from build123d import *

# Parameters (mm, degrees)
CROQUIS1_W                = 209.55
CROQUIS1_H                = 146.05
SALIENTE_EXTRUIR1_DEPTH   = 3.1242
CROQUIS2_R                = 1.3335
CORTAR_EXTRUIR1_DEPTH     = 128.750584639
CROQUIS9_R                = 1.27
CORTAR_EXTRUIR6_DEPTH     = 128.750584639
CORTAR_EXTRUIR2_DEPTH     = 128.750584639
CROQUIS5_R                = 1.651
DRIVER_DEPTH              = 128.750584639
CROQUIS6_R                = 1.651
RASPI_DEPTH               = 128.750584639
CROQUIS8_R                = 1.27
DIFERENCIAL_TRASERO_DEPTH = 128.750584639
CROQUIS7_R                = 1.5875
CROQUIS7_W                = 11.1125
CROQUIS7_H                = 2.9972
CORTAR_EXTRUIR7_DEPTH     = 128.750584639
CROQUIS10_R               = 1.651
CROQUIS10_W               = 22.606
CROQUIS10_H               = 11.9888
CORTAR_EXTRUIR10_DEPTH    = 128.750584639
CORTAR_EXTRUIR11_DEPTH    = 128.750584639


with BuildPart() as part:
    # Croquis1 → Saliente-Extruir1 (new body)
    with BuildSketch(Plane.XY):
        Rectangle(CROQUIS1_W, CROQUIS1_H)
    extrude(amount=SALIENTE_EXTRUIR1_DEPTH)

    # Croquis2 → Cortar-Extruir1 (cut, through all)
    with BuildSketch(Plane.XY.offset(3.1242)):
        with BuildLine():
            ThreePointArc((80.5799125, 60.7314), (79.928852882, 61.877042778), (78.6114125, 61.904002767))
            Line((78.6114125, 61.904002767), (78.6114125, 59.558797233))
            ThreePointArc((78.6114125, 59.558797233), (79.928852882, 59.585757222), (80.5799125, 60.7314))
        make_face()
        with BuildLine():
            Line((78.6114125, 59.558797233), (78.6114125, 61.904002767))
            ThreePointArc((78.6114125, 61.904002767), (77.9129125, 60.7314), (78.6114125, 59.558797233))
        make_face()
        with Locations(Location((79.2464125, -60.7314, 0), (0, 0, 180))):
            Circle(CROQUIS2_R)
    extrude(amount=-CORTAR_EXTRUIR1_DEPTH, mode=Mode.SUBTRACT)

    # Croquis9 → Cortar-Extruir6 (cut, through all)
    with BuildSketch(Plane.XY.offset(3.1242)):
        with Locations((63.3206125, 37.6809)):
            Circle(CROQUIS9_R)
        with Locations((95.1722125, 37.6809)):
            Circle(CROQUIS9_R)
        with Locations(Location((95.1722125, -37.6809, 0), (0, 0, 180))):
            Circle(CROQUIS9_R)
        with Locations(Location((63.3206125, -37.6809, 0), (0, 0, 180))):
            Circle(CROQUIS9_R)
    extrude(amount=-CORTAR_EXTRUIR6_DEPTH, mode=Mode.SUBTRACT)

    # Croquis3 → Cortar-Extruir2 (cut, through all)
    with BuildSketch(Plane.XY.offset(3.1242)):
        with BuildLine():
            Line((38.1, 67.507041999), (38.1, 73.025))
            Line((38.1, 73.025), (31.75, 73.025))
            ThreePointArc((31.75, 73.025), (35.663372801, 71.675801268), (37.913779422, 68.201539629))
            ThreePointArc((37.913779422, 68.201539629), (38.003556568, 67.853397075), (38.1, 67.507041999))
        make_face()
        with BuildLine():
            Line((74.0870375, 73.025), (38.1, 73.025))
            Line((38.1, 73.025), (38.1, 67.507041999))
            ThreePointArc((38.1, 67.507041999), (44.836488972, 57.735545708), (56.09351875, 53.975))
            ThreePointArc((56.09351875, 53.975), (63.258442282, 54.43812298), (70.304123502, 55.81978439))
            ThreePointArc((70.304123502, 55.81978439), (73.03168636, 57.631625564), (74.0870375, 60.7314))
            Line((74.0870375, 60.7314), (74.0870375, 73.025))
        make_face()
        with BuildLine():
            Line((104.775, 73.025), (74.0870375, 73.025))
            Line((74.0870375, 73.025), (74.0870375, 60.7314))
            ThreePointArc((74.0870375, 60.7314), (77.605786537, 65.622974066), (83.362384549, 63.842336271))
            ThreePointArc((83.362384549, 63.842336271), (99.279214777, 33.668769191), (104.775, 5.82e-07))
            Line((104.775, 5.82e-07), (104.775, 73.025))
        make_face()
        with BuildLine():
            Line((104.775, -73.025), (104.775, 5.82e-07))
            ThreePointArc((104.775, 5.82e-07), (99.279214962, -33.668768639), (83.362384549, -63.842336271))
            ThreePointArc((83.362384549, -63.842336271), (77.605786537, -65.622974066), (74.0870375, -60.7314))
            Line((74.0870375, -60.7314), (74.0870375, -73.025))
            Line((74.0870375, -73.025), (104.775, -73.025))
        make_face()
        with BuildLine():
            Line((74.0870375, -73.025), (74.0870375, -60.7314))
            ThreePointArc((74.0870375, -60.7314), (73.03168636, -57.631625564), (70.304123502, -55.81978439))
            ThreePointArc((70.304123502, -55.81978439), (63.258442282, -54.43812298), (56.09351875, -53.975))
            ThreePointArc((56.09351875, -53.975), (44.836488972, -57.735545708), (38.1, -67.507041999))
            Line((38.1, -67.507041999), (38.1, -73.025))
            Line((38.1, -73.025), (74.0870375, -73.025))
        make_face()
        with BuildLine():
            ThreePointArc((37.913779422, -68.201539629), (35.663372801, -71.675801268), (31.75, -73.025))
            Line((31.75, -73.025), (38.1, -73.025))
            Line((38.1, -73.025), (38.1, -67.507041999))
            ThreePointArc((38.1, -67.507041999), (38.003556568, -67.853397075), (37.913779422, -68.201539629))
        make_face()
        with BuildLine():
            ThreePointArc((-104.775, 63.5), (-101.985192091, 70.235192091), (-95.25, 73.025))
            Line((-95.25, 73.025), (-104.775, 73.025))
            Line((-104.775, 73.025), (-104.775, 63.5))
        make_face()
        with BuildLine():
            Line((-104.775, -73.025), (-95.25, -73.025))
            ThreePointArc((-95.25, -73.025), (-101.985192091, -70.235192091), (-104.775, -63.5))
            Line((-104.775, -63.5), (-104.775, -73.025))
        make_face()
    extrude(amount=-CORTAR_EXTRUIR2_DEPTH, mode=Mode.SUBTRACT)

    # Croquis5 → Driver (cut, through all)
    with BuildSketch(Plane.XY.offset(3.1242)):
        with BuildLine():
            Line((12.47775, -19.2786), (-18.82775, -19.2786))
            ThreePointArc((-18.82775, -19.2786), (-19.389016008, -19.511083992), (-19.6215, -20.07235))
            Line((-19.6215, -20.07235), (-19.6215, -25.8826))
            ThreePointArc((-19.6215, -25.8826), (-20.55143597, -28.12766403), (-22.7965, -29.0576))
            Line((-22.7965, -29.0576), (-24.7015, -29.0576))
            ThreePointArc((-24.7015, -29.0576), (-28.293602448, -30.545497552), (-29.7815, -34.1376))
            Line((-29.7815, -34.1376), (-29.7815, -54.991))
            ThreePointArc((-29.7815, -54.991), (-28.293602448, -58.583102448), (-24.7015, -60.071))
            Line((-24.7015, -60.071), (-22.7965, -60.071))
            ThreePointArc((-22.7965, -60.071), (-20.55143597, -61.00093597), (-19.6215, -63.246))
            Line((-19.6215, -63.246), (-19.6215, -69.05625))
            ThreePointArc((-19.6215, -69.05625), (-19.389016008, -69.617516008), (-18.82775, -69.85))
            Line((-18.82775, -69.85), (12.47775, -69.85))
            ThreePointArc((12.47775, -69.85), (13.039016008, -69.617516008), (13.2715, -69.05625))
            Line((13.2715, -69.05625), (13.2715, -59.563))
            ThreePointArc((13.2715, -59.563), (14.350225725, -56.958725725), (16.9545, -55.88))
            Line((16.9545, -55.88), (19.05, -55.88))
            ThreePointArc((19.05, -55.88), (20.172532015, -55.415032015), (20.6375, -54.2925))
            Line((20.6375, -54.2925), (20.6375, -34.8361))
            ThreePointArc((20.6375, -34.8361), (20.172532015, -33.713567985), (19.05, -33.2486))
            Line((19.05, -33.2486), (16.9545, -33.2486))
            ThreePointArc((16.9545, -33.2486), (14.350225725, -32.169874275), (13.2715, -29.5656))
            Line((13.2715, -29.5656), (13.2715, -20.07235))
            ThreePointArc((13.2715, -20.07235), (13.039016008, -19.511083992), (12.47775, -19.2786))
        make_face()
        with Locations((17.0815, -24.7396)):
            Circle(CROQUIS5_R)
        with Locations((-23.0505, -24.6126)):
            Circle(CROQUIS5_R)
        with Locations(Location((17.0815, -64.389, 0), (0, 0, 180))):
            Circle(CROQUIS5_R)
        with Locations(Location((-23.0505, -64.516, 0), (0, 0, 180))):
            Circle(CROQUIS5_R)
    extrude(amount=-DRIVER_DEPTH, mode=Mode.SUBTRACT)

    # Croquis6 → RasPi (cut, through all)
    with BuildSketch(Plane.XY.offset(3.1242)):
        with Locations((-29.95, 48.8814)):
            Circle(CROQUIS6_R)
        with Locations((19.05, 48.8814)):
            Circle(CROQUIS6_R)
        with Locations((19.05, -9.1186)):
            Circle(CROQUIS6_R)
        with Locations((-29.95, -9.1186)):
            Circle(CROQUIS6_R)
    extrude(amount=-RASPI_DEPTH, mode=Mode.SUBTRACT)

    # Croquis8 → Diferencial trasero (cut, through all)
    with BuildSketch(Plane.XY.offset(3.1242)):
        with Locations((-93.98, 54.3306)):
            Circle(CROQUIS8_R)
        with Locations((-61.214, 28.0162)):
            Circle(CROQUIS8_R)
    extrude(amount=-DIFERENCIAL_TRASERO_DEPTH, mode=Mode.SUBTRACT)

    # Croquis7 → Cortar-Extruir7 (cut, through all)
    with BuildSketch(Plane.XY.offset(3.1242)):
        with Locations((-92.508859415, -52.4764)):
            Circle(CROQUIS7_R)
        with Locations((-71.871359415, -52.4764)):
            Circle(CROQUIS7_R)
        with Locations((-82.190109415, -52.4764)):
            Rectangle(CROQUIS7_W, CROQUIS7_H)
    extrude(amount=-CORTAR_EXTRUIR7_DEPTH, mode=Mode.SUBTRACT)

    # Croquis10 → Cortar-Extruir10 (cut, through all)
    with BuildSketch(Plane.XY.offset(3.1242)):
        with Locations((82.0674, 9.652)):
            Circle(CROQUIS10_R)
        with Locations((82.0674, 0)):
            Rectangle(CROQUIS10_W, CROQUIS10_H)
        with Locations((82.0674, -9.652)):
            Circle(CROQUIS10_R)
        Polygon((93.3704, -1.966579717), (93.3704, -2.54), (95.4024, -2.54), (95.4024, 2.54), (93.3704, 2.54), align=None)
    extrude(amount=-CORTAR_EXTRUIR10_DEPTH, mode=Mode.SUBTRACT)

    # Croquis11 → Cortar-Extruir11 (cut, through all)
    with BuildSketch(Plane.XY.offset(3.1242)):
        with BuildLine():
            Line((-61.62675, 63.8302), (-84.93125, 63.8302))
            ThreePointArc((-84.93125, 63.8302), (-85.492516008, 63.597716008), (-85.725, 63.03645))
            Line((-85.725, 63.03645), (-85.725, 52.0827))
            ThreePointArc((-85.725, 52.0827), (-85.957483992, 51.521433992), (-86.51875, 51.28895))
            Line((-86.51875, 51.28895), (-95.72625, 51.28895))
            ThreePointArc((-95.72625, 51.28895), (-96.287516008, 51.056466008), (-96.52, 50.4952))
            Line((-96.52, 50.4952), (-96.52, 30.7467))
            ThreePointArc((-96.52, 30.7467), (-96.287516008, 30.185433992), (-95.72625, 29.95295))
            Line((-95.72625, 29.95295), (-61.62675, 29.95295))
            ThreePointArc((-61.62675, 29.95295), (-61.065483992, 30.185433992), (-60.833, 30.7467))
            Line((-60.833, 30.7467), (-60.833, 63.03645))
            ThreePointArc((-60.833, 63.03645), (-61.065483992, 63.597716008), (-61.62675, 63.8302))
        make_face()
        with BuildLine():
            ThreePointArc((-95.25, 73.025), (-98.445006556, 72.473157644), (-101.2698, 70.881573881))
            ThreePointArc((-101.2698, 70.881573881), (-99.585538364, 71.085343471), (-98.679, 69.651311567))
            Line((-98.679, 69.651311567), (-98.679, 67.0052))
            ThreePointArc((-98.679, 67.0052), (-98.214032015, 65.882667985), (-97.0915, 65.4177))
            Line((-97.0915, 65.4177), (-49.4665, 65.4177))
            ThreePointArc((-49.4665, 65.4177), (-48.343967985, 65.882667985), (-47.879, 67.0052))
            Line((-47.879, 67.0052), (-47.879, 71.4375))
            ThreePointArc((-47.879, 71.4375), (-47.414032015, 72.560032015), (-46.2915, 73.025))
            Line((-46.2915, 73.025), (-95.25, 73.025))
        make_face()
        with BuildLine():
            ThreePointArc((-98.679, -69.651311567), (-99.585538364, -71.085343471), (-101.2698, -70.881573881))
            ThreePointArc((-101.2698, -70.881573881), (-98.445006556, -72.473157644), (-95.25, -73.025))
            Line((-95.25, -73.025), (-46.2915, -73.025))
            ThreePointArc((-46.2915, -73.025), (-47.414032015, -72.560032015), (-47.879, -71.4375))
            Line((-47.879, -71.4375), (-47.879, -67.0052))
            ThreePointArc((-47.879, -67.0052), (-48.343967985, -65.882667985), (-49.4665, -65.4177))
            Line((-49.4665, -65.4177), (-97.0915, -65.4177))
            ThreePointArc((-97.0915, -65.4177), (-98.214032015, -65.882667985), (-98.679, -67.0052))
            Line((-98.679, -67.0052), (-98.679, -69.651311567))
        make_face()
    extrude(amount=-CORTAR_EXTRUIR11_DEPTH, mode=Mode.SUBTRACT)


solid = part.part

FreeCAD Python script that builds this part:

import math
import FreeCAD as App
import Part
import Sketcher

V = App.Vector
Q = App.Units.Quantity


def add_polygon(sketch, points):
    """Adds a closed chain of lines whose ends are joined by coincident constraints."""
    first, n = sketch.GeometryCount, len(points)
    for a, b in zip(points, points[1:] + points[:1]):
        sketch.addGeometry(Part.LineSegment(App.Vector(*a, 0), App.Vector(*b, 0)), False)
    for i in range(n):
        sketch.addConstraint(Sketcher.Constraint("Coincident", first + i, 2, first + (i + 1) % n, 1))

doc = App.newDocument("Part")
params = doc.addObject("Spreadsheet::Sheet", "Params")
for row, (alias, value) in enumerate([
    ("sketch1_width", "8.25 in"),
    ("sketch1_height", "5.75 in"),
    ("pad1_length", "0.123 in"),
    ("sketch2_diameter", "0.105 in"),
    ("sketch3_diameter", "0.1 in"),
    ("sketch4_radius", "0.2 in"),
    ("sketch4_radius2", "0.25 in"),
    ("sketch4_radius3", "0.203125 in"),
    ("sketch4_radius4", "0.375 in"),
    ("sketch5_radius", "0.2 in"),
    ("sketch5_diameter", "0.13 in"),
    ("sketch5_radius2", "0.03125 in"),
    ("sketch5_radius3", "0.125 in"),
    ("sketch5_radius4", "0.145 in"),
    ("sketch6_diameter", "0.13 in"),
    ("sketch7_diameter", "0.1 in"),
    ("sketch8_diameter", "0.125 in"),
    ("sketch8_width", "0.4375 in"),
    ("sketch8_height", "0.118 in"),
    ("sketch9_diameter", "0.13 in"),
    ("sketch9_height", "0.2 in"),
    ("sketch9_width", "0.89 in"),
    ("sketch9_width2", "0.08 in"),
    ("sketch9_height2", "0.472 in"),
    ("sketch10_radius", "0.03125 in"),
    ("sketch10_radius2", "0.375 in"),
    ("sketch10_radius3", "0.0625 in"),
], start=1):
    params.set(f"A{row}", alias)
    params.set(f"B{row}", "=" + value)
    params.setAlias(f"B{row}", alias)

body = doc.addObject("PartDesign::Body", "Body")

sketch1 = body.newObject("Sketcher::SketchObject", "Sketch")
sketch1.AttachmentSupport = (doc.getObject("XY_Plane"), [""])
sketch1.MapMode = "FlatFace"
add_polygon(sketch1, [(-105, 73), (-105, -73), (105, -73), (105, 73)])
sketch1.addConstraint([
    Sketcher.Constraint("Vertical", 0),
    Sketcher.Constraint("Horizontal", 1),
    Sketcher.Constraint("Vertical", 2),
    Sketcher.Constraint("Horizontal", 3),
    Sketcher.Constraint("Symmetric", 0, 2, 2, 2, -1, 1),
    Sketcher.Constraint("DistanceX", 1, 1, 1, 2, Q("8.25 in")),
    Sketcher.Constraint("DistanceY", 0, 2, 0, 1, Q("5.75 in")),
])
sketch1.setExpression("Constraints[9]", "Params.sketch1_width")
sketch1.setExpression("Constraints[10]", "Params.sketch1_height")
pad1 = body.newObject("PartDesign::Pad", "Pad")
pad1.Profile = sketch1
pad1.setExpression("Length", "Params.pad1_length")

sketch2 = body.newObject("Sketcher::SketchObject", "Sketch001")
sketch2.AttachmentSupport = (doc.getObject("XY_Plane"), [""])
sketch2.MapMode = "FlatFace"
sketch2.AttachmentOffset = App.Placement(V(0, 0, 0.123 * 25.4), App.Rotation())
sketch2.addGeometry([
    Part.ArcOfCircle(Part.Circle(V(79.2, 60.7, 0), V(0, 0, 1), 1.3), math.radians(0), math.radians(118)),
    Part.ArcOfCircle(Part.Circle(V(79.2, 60.7, 0), V(0, 0, 1), 1.3), math.radians(118), math.radians(242)),
    Part.ArcOfCircle(Part.Circle(V(79.2, 60.7, 0), V(0, 0, 1), 1.3), math.radians(-118), math.radians(0)),
    Part.Circle(V(79.2, -60.7, 0), V(0, 0, 1), 1.3),
], False)
sketch2.addConstraint([
    Sketcher.Constraint("Tangent", 0, 2, 1, 1),
    Sketcher.Constraint("Tangent", 1, 2, 2, 1),
    Sketcher.Constraint("Tangent", 2, 2, 0, 1),
    Sketcher.Constraint("Equal", 2, 3),
    Sketcher.Constraint("Symmetric", 0, 3, 3, 3, -1),
    Sketcher.Constraint("Horizontal", 1, 3, 2, 2),
    Sketcher.Constraint("Vertical", 0, 2, 1, 2),
    Sketcher.Constraint("Diameter", 3, Q("0.105 in")),
    Sketcher.Constraint("DistanceY", -1, 1, 0, 3, Q("2.391 in")),
    Sketcher.Constraint("DistanceX", 0, 2, 1, 3, Q("0.025 in")),
    Sketcher.Constraint("DistanceX", -1, 1, 0, 3, 79.246413),
])
sketch2.setExpression("Constraints[7]", "Params.sketch2_diameter")
pocket1 = body.newObject("PartDesign::Pocket", "Pocket")
pocket1.Profile = sketch2
pocket1.Type = "ThroughAll"

sketch3 = body.newObject("Sketcher::SketchObject", "Sketch002")
sketch3.AttachmentSupport = (doc.getObject("XY_Plane"), [""])
sketch3.MapMode = "FlatFace"
sketch3.AttachmentOffset = App.Placement(V(0, 0, 0.123 * 25.4), App.Rotation())
sketch3.addGeometry([
    Part.Circle(V(63.3, 37.7, 0), V(0, 0, 1), 1.3),
    Part.Circle(V(95.2, 37.7, 0), V(0, 0, 1), 1.3),
    Part.Circle(V(95.2, -37.7, 0), V(0, 0, 1), 1.3),
    Part.Circle(V(63.3, -37.7, 0), V(0, 0, 1), 1.3),
], False)
sketch3.addConstraint([
    Sketcher.Constraint("Equal", 0, 1),
    Sketcher.Constraint("Equal", 1, 2),
    Sketcher.Constraint("Equal", 2, 3),
    Sketcher.Constraint("Symmetric", 1, 3, 2, 3, -1),
    Sketcher.Constraint("Symmetric", 0, 3, 3, 3, -1),
    Sketcher.Constraint("Horizontal", 0, 3, 1, 3),
    Sketcher.Constraint("Diameter", 0, Q("0.1 in")),
    Sketcher.Constraint("DistanceX", 0, 3, 1, 3, Q("1.254 in")),
    Sketcher.Constraint("DistanceY", 2, 3, 1, 3, Q("2.967 in")),
    Sketcher.Constraint("DistanceX", -1, 1, 0, 3, 63.320613),
])
sketch3.setExpression("Constraints[6]", "Params.sketch3_diameter")
pocket2 = body.newObject("PartDesign::Pocket", "Pocket001")
pocket2.Profile = sketch3
pocket2.Type = "ThroughAll"

sketch4 = body.newObject("Sketcher::SketchObject", "Sketch003")
sketch4.AttachmentSupport = (doc.getObject("XY_Plane"), [""])
sketch4.MapMode = "FlatFace"
sketch4.AttachmentOffset = App.Placement(V(0, 0, 0.123 * 25.4), App.Rotation())
sketch4.addGeometry([
    Part.ArcOfCircle(Part.Circle(V(31.8, 66.7, 0), V(0, 0, 1), 6.3), math.radians(14), math.radians(90)),
    Part.ArcOfCircle(Part.Circle(V(56.1, 72.7, 0), V(0, 0, 1), 18.7), math.radians(-166.09), math.radians(-163.89)),
    Part.ArcOfCircle(Part.Circle(V(56.1, 72.7, 0), V(0, 0, 1), 18.7), math.radians(-164), math.radians(-90)),
    Part.ArcOfCircle(Part.Circle(V(56.1, 109.6, 0), V(0, 0, 1), 55.7), math.radians(-90), math.radians(-75.21)),
    Part.ArcOfCircle(Part.Circle(V(69, 60.7, 0), V(0, 0, 1), 5.1), math.radians(-75), math.radians(0)),
    Part.ArcOfCircle(Part.Circle(V(79.2, 60.7, 0), V(0, 0, 1), 5.2), math.radians(37), math.radians(180)),
    Part.ArcOfCircle(Part.Circle(V(-1.1, 0, 0), V(0, 0, 1), 105.9), math.radians(0), math.radians(37)),
    Part.LineSegment(V(104.8, 0, 0), V(104.8, 73, 0)),
    Part.LineSegment(V(104.8, 73, 0), V(31.8, 73, 0)),
    Part.LineSegment(V(104.8, -73, 0), V(104.8, 0, 0)),
    Part.ArcOfCircle(Part.Circle(V(-1.1, 0, 0), V(0, 0, 1), 105.9), math.radians(-37), math.radians(0)),
    Part.ArcOfCircle(Part.Circle(V(79.2, -60.7, 0), V(0, 0, 1), 5.2), math.radians(180), math.radians(323)),
    Part.ArcOfCircle(Part.Circle(V(69, -60.7, 0), V(0, 0, 1), 5.1), math.radians(0), math.radians(75)),
    Part.ArcOfCircle(Part.Circle(V(56.1, -109.6, 0), V(0, 0, 1), 55.7), math.radians(75.21), math.radians(90)),
    Part.ArcOfCircle(Part.Circle(V(56.1, -72.7, 0), V(0, 0, 1), 18.7), math.radians(90), math.radians(164)),
    Part.ArcOfCircle(Part.Circle(V(56.1, -72.7, 0), V(0, 0, 1), 18.7), math.radians(163.89), math.radians(166.09)),
    Part.ArcOfCircle(Part.Circle(V(31.8, -66.7, 0), V(0, 0, 1), 6.3), math.radians(-90), math.radians(-14)),
    Part.LineSegment(V(31.8, -73, 0), V(104.8, -73, 0)),
    Part.ArcOfCircle(Part.Circle(V(-95.3, 63.5, 0), V(0, 0, 1), 9.5), math.radians(90), math.radians(180)),
    Part.LineSegment(V(-95.2, 73, 0), V(-104.8, 73, 0)),
    Part.LineSegment(V(-104.8, 73, 0), V(-104.8, 63.5, 0)),
    Part.LineSegment(V(-104.8, -73, 0), V(-95.2, -73, 0)),
    Part.ArcOfCircle(Part.Circle(V(-95.3, -63.5, 0), V(0, 0, 1), 9.5), math.radians(180), math.radians(270)),
    Part.LineSegment(V(-104.8, -63.5, 0), V(-104.8, -73, 0)),
], False)
sketch4.addConstraint([
    Sketcher.Constraint("Tangent", 0, 1, 1, 1),
    Sketcher.Constraint("Tangent", 1, 2, 2, 1),
    Sketcher.Constraint("Tangent", 2, 2, 3, 1),
    Sketcher.Constraint("Tangent", 3, 2, 4, 1),
    Sketcher.Constraint("Tangent", 4, 2, 5, 2),
    Sketcher.Constraint("Tangent", 5, 1, 6, 2),
    Sketcher.Constraint("Tangent", 6, 1, 7, 1),
    Sketcher.Constraint("Coincident", 7, 2, 8, 1),
    Sketcher.Constraint("Tangent", 8, 2, 0, 2),
    Sketcher.Constraint("Tangent", 9, 2, 10, 2),
    Sketcher.Constraint("Tangent", 10, 1, 11, 2),
    Sketcher.Constraint("Tangent", 11, 1, 12, 1),
    Sketcher.Constraint("Tangent", 12, 2, 13, 1),
    Sketcher.Constraint("Tangent", 13, 2, 14, 1),
    Sketcher.Constraint("Tangent", 14, 2, 15, 1),
    Sketcher.Constraint("Tangent", 15, 2, 16, 2),
    Sketcher.Constraint("Tangent", 16, 1, 17, 1),
    Sketcher.Constraint("Coincident", 17, 2, 9, 1),
    Sketcher.Constraint("Tangent", 18, 1, 19, 1),
    Sketcher.Constraint("Coincident", 19, 2, 20, 1),
    Sketcher.Constraint("Tangent", 20, 2, 18, 2),
    Sketcher.Constraint("Tangent", 21, 2, 22, 2),
    Sketcher.Constraint("Tangent", 22, 1, 23, 1),
    Sketcher.Constraint("Coincident", 23, 2, 21, 1),
    Sketcher.Constraint("Vertical", 7),
    Sketcher.Constraint("Horizontal", 8),
    Sketcher.Constraint("Vertical", 9),
    Sketcher.Constraint("Horizontal", 17),
    Sketcher.Constraint("Horizontal", 19),
    Sketcher.Constraint("Vertical", 20),
    Sketcher.Constraint("Horizontal", 21),
    Sketcher.Constraint("Vertical", 23),
    Sketcher.Constraint("Coincident", 10, 3, 6, 3),
    Sketcher.Constraint("Equal", 1, 2),
    Sketcher.Constraint("Equal", 6, 10),
    Sketcher.Constraint("Equal", 5, 11),
    Sketcher.Constraint("Equal", 4, 12),
    Sketcher.Constraint("Equal", 3, 13),
    Sketcher.Constraint("Equal", 2, 14),
    Sketcher.Constraint("Equal", 14, 15),
    Sketcher.Constraint("Equal", 0, 16),
    Sketcher.Constraint("Equal", 18, 22),
    Sketcher.Constraint("Symmetric", 17, 2, 19, 2, -1, 1),
    Sketcher.Constraint("Symmetric", 7, 2, 23, 2, -1, 1),
    Sketcher.Constraint("Symmetric", 5, 3, 11, 3, -1),
    Sketcher.Constraint("Symmetric", 3, 3, 13, 3, -1),
    Sketcher.Constraint("Symmetric", 0, 3, 16, 3, -1),
    Sketcher.Constraint("Horizontal", 4, 3, 5, 3),
    Sketcher.Constraint("Vertical", 2, 3, 3, 3),
    Sketcher.Constraint("Vertical", 1, 2, 14, 2),
    Sketcher.Constraint("Equal", 17, 7),
    Sketcher.Constraint("Radius", 4, Q("0.2 in")),
    Sketcher.Constraint("Radius", 0, Q("0.25 in")),
    Sketcher.Constraint("Radius", 5, Q("0.203125 in")),
    Sketcher.Constraint("Radius", 18, Q("0.375 in")),
    Sketcher.Constraint("DistanceX", 18, 3, 0, 3, Q("5 in")),
    Sketcher.Constraint("DistanceY", 22, 3, 18, 3, Q("5 in")),
    Sketcher.Constraint("DistanceX", -1, 1, 1, 2, Q("1.5 in")),
    Sketcher.Constraint("Radius", 6, 105.8802),
    Sketcher.Constraint("DistanceY", -1, 1, 4, 3, Q("2.391 in")),
    Sketcher.Constraint("DistanceY", -1, 1, 2, 2, Q("2.125 in")),
    Sketcher.Constraint("DistanceY", -1, 1, 0, 1, Q("2.6851 in")),
])
sketch4.setExpression("Constraints[51]", "Params.sketch4_radius")
sketch4.setExpression("Constraints[52]", "Params.sketch4_radius2")
sketch4.setExpression("Constraints[53]", "Params.sketch4_radius3")
sketch4.setExpression("Constraints[54]", "Params.sketch4_radius4")
pocket3 = body.newObject("PartDesign::Pocket", "Pocket002")
pocket3.Profile = sketch4
pocket3.Type = "ThroughAll"

sketch5 = body.newObject("Sketcher::SketchObject", "Sketch004")
sketch5.AttachmentSupport = (doc.getObject("XY_Plane"), [""])
sketch5.MapMode = "FlatFace"
sketch5.AttachmentOffset = App.Placement(V(0, 0, 0.123 * 25.4), App.Rotation())
sketch5.addGeometry([
    Part.LineSegment(V(12.5, -19.3, 0), V(-18.8, -19.3, 0)),
    Part.ArcOfCircle(Part.Circle(V(-18.8, -20.1, 0), V(0, 0, 1), 0.8), math.radians(90), math.radians(180)),
    Part.LineSegment(V(-19.6, -20.1, 0), V(-19.6, -25.9, 0)),
    Part.ArcOfCircle(Part.Circle(V(-22.8, -25.9, 0), V(0, 0, 1), 3.2), math.radians(-90), math.radians(0)),
    Part.LineSegment(V(-22.8, -29.1, 0), V(-24.7, -29.1, 0)),
    Part.ArcOfCircle(Part.Circle(V(-24.7, -34.1, 0), V(0, 0, 1), 5.1), math.radians(90), math.radians(180)),
    Part.LineSegment(V(-29.8, -34.1, 0), V(-29.8, -55, 0)),
    Part.ArcOfCircle(Part.Circle(V(-24.7, -55, 0), V(0, 0, 1), 5.1), math.radians(-180), math.radians(-90)),
    Part.LineSegment(V(-24.7, -60.1, 0), V(-22.8, -60.1, 0)),
    Part.ArcOfCircle(Part.Circle(V(-22.8, -63.2, 0), V(0, 0, 1), 3.2), math.radians(0), math.radians(90)),
    Part.LineSegment(V(-19.6, -63.2, 0), V(-19.6, -69.1, 0)),
    Part.ArcOfCircle(Part.Circle(V(-18.8, -69.1, 0), V(0, 0, 1), 0.8), math.radians(180), math.radians(270)),
    Part.LineSegment(V(-18.8, -69.8, 0), V(12.5, -69.8, 0)),
    Part.ArcOfCircle(Part.Circle(V(12.5, -69.1, 0), V(0, 0, 1), 0.8), math.radians(-90), math.radians(0)),
    Part.LineSegment(V(13.3, -69.1, 0), V(13.3, -59.6, 0)),
    Part.ArcOfCircle(Part.Circle(V(17, -59.6, 0), V(0, 0, 1), 3.7), math.radians(90), math.radians(180)),
    Part.LineSegment(V(17, -55.9, 0), V(19.1, -55.9, 0)),
    Part.ArcOfCircle(Part.Circle(V(19.1, -54.3, 0), V(0, 0, 1), 1.6), math.radians(-90), math.radians(0)),
    Part.LineSegment(V(20.6, -54.3, 0), V(20.6, -34.8, 0)),
    Part.ArcOfCircle(Part.Circle(V(19.1, -34.8, 0), V(0, 0, 1), 1.6), math.radians(0), math.radians(90)),
    Part.LineSegment(V(19.1, -33.2, 0), V(17, -33.2, 0)),
    Part.ArcOfCircle(Part.Circle(V(17, -29.6, 0), V(0, 0, 1), 3.7), math.radians(180), math.radians(270)),
    Part.LineSegment(V(13.3, -29.6, 0), V(13.3, -20.1, 0)),
    Part.ArcOfCircle(Part.Circle(V(12.5, -20.1, 0), V(0, 0, 1), 0.8), math.radians(0), math.radians(90)),
    Part.Circle(V(17.1, -24.7, 0), V(0, 0, 1), 1.7),
    Part.Circle(V(-23.1, -24.6, 0), V(0, 0, 1), 1.7),
    Part.Circle(V(17.1, -64.4, 0), V(0, 0, 1), 1.7),
    Part.Circle(V(-23.1, -64.5, 0), V(0, 0, 1), 1.7),
], False)
sketch5.addConstraint([
    Sketcher.Constraint("Tangent", 0, 2, 1, 1),
    Sketcher.Constraint("Tangent", 1, 2, 2, 1),
    Sketcher.Constraint("Tangent", 2, 2, 3, 2),
    Sketcher.Constraint("Tangent", 3, 1, 4, 1),
    Sketcher.Constraint("Tangent", 4, 2, 5, 1),
    Sketcher.Constraint("Tangent", 5, 2, 6, 1),
    Sketcher.Constraint("Tangent", 6, 2, 7, 1),
    Sketcher.Constraint("Tangent", 7, 2, 8, 1),
    Sketcher.Constraint("Tangent", 8, 2, 9, 2),
    Sketcher.Constraint("Tangent", 9, 1, 10, 1),
    Sketcher.Constraint("Tangent", 10, 2, 11, 1),
    Sketcher.Constraint("Tangent", 11, 2, 12, 1),
    Sketcher.Constraint("Tangent", 12, 2, 13, 1),
    Sketcher.Constraint("Tangent", 13, 2, 14, 1),
    Sketcher.Constraint("Tangent", 14, 2, 15, 2),
    Sketcher.Constraint("Tangent", 15, 1, 16, 1),
    Sketcher.Constraint("Tangent", 16, 2, 17, 1),
    Sketcher.Constraint("Tangent", 17, 2, 18, 1),
    Sketcher.Constraint("Tangent", 18, 2, 19, 1),
    Sketcher.Constraint("Tangent", 19, 2, 20, 1),
    Sketcher.Constraint("Tangent", 20, 2, 21, 2),
    Sketcher.Constraint("Tangent", 21, 1, 22, 1),
    Sketcher.Constraint("Tangent", 22, 2, 23, 1),
    Sketcher.Constraint("Tangent", 23, 2, 0, 1),
    Sketcher.Constraint("Horizontal", 0),
    Sketcher.Constraint("Vertical", 2),
    Sketcher.Constraint("Horizontal", 4),
    Sketcher.Constraint("Vertical", 6),
    Sketcher.Constraint("Horizontal", 8),
    Sketcher.Constraint("Vertical", 10),
    Sketcher.Constraint("Horizontal", 12),
    Sketcher.Constraint("Vertical", 14),
    Sketcher.Constraint("Horizontal", 16),
    Sketcher.Constraint("Vertical", 18),
    Sketcher.Constraint("Horizontal", 20),
    Sketcher.Constraint("Vertical", 22),
    Sketcher.Constraint("Equal", 5, 7),
    Sketcher.Constraint("Equal", 3, 9),
    Sketcher.Constraint("Equal", 1, 11),
    Sketcher.Constraint("Equal", 11, 13),
    Sketcher.Constraint("Equal", 17, 19),
    Sketcher.Constraint("Equal", 15, 21),
    Sketcher.Constraint("Equal", 13, 23),
    Sketcher.Constraint("Equal", 24, 25),
    Sketcher.Constraint("Equal", 25, 26),
    Sketcher.Constraint("Equal", 26, 27),
    Sketcher.Constraint("Vertical", 3, 3, 9, 3),
    Sketcher.Constraint("Vertical", 15, 3, 21, 3),
    Sketcher.Constraint("Vertical", 24, 3, 26, 3),
    Sketcher.Constraint("Vertical", 25, 3, 27, 3),
    Sketcher.Constraint("Equal", 2, 10),
    Sketcher.Constraint("Equal", 14, 22),
    Sketcher.Constraint("Radius", 5, Q("0.2 in")),
    Sketcher.Constraint("Diameter", 24, Q("0.13 in")),
    Sketcher.Constraint("Radius", 1, Q("0.03125 in")),
    Sketcher.Constraint("Radius", 3, Q("0.125 in")),
    Sketcher.Constraint("Radius", 15, Q("0.145 in")),
    Sketcher.Constraint("Radius", 17, Q("0.0625 in")),
    Sketcher.Constraint("DistanceY", 15, 1, -1, 1, Q("2.2 in")),
    Sketcher.Constraint("DistanceX", 5, 3, 1, 2, Q("0.2 in")),
    Sketcher.Constraint("DistanceY", 6, 2, 6, 1, Q("0.821 in")),
    Sketcher.Constraint("DistanceY", 18, 1, 18, 2, Q("0.766 in")),
    Sketcher.Constraint("DistanceX", -1, 1, 17, 3, Q("0.75 in")),
    Sketcher.Constraint("DistanceY", 27, 3, -1, 1, Q("2.54 in")),
    Sketcher.Constraint("DistanceY", 11, 2, -1, 1, Q("2.75 in")),
    Sketcher.Constraint("DistanceX", 7, 3, 15, 3, Q("1.64 in")),
    Sketcher.Constraint("DistanceY", 21, 3, 24, 3, Q("0.19 in")),
    Sketcher.Constraint("DistanceX", 25, 3, 3, 3, Q("0.01 in")),
    Sketcher.Constraint("DistanceY", 3, 3, 25, 3, Q("0.05 in")),
    Sketcher.Constraint("DistanceY", 26, 3, 15, 3, Q("0.19 in")),
    Sketcher.Constraint("DistanceX", 13, 2, 26, 3, Q("0.15 in")),
    Sketcher.Constraint("DistanceX", 14, 2, 17, 2, Q("0.29 in")),
])
sketch5.setExpression("Constraints[52]", "Params.sketch5_radius")
sketch5.setExpression("Constraints[53]", "Params.sketch5_diameter")
sketch5.setExpression("Constraints[54]", "Params.sketch5_radius2")
sketch5.setExpression("Constraints[55]", "Params.sketch5_radius3")
sketch5.setExpression("Constraints[56]", "Params.sketch5_radius4")
pocket4 = body.newObject("PartDesign::Pocket", "Pocket003")
pocket4.Profile = sketch5
pocket4.Type = "ThroughAll"

sketch6 = body.newObject("Sketcher::SketchObject", "Sketch005")
sketch6.AttachmentSupport = (doc.getObject("XY_Plane"), [""])
sketch6.MapMode = "FlatFace"
sketch6.AttachmentOffset = App.Placement(V(0, 0, 0.123 * 25.4), App.Rotation())
sketch6.addGeometry([
    Part.Circle(V(-29.9, 48.9, 0), V(0, 0, 1), 1.7),
    Part.Circle(V(19.1, 48.9, 0), V(0, 0, 1), 1.7),
    Part.Circle(V(19.1, -9.1, 0), V(0, 0, 1), 1.7),
    Part.Circle(V(-29.9, -9.1, 0), V(0, 0, 1), 1.7),
], False)
sketch6.addConstraint([
    Sketcher.Constraint("Equal", 0, 1),
    Sketcher.Constraint("Equal", 1, 2),
    Sketcher.Constraint("Equal", 2, 3),
    Sketcher.Constraint("Horizontal", 0, 3, 1, 3),
    Sketcher.Constraint("Horizontal", 2, 3, 3, 3),
    Sketcher.Constraint("Vertical", 1, 3, 2, 3),
    Sketcher.Constraint("Vertical", 0, 3, 3, 3),
    Sketcher.Constraint("Diameter", 0, Q("0.13 in")),
    Sketcher.Constraint("DistanceX", -1, 1, 1, 3, Q("0.75 in")),
    Sketcher.Constraint("DistanceY", 2, 3, -1, 1, Q("0.359 in")),
    Sketcher.Constraint("DistanceX", 0, 3, -1, 1, 29.95),
    Sketcher.Constraint("DistanceY", -1, 1, 0, 3, 48.8814),
])
sketch6.setExpression("Constraints[7]", "Params.sketch6_diameter")
pocket5 = body.newObject("PartDesign::Pocket", "Pocket004")
pocket5.Profile = sketch6
pocket5.Type = "ThroughAll"

sketch7 = body.newObject("Sketcher::SketchObject", "Sketch006")
sketch7.AttachmentSupport = (doc.getObject("XY_Plane"), [""])
sketch7.MapMode = "FlatFace"
sketch7.AttachmentOffset = App.Placement(V(0, 0, 0.123 * 25.4), App.Rotation())
sketch7.addGeometry([
    Part.Circle(V(-94, 54.3, 0), V(0, 0, 1), 1.3),
    Part.Circle(V(-61.2, 28, 0), V(0, 0, 1), 1.3),
], False)
sketch7.addConstraint([
    Sketcher.Constraint("Equal", 0, 1),
    Sketcher.Constraint("Diameter", 0, Q("0.1 in")),
    Sketcher.Constraint("DistanceX", 0, 3, -1, 1, Q("3.7 in")),
    Sketcher.Constraint("DistanceX", 1, 3, -1, 1, Q("2.41 in")),
    Sketcher.Constraint("DistanceY", -1, 1, 0, 3, Q("2.139 in")),
    Sketcher.Constraint("DistanceY", -1, 1, 1, 3, Q("1.103 in")),
])
sketch7.setExpression("Constraints[1]", "Params.sketch7_diameter")
pocket6 = body.newObject("PartDesign::Pocket", "Pocket005")
pocket6.Profile = sketch7
pocket6.Type = "ThroughAll"

sketch8 = body.newObject("Sketcher::SketchObject", "Sketch007")
sketch8.AttachmentSupport = (doc.getObject("XY_Plane"), [""])
sketch8.MapMode = "FlatFace"
sketch8.AttachmentOffset = App.Placement(V(0, 0, 0.123 * 25.4), App.Rotation())
sketch8.addGeometry(Part.Circle(V(-92.5, -52.5, 0), V(0, 0, 1), 1.6), False)
sketch8.addGeometry(Part.Circle(V(-71.9, -52.5, 0), V(0, 0, 1), 1.6), False)
add_polygon(sketch8, [(-87.7, -51), (-87.7, -54), (-76.6, -54), (-76.6, -51)])
sketch8.addConstraint([
    Sketcher.Constraint("Vertical", 2),
    Sketcher.Constraint("Horizontal", 3),
    Sketcher.Constraint("Vertical", 4),
    Sketcher.Constraint("Horizontal", 5),
    Sketcher.Constraint("Equal", 0, 1),
    Sketcher.Constraint("Horizontal", 0, 3, 1, 3),
    Sketcher.Constraint("Diameter", 0, Q("0.125 in")),
    Sketcher.Constraint("DistanceX", 3, 1, 3, 2, Q("0.4375 in")),
    Sketcher.Constraint("DistanceY", 2, 2, 2, 1, Q("0.118 in")),
    Sketcher.Constraint("DistanceY", 0, 3, -1, 1, Q("2.066 in")),
    Sketcher.Constraint("DistanceY", 2, 2, -1, 1, Q("2.125 in")),
    Sketcher.Constraint("DistanceX", 0, 3, 1, 3, Q("0.8125 in")),
    Sketcher.Constraint("DistanceX", 0, 3, 2, 2, Q("0.1875 in")),
    Sketcher.Constraint("DistanceX", 0, 3, -1, 1, 92.508859),
])
sketch8.setExpression("Constraints[10]", "Params.sketch8_diameter")
sketch8.setExpression("Constraints[11]", "Params.sketch8_width")
sketch8.setExpression("Constraints[12]", "Params.sketch8_height")
pocket7 = body.newObject("PartDesign::Pocket", "Pocket006")
pocket7.Profile = sketch8
pocket7.Type = "ThroughAll"

sketch9 = body.newObject("Sketcher::SketchObject", "Sketch008")
sketch9.AttachmentSupport = (doc.getObject("XY_Plane"), [""])
sketch9.MapMode = "FlatFace"
sketch9.AttachmentOffset = App.Placement(V(0, 0, 0.123 * 25.4), App.Rotation())
sketch9.addGeometry(Part.Circle(V(82.1, 9.7, 0), V(0, 0, 1), 1.7), False)
add_polygon(sketch9, [(70.8, 6), (70.8, -6), (93.4, -6), (93.4, -2.5), (95.4, -2.5), (95.4, 2.5), (93.4, 2.5), (93.4, 6)])
sketch9.addGeometry(Part.Circle(V(82.1, -9.7, 0), V(0, 0, 1), 1.7), False)
sketch9.addConstraint([
    Sketcher.Constraint("Vertical", 1),
    Sketcher.Constraint("Horizontal", 2),
    Sketcher.Constraint("Vertical", 3),
    Sketcher.Constraint("Horizontal", 4),
    Sketcher.Constraint("Vertical", 5),
    Sketcher.Constraint("Horizontal", 6),
    Sketcher.Constraint("Vertical", 7),
    Sketcher.Constraint("Horizontal", 8),
    Sketcher.Constraint("Equal", 0, 9),
    Sketcher.Constraint("Symmetric", 0, 3, 9, 3, -1),
    Sketcher.Constraint("Symmetric", 3, 2, 6, 2, -1),
    Sketcher.Constraint("Equal", 3, 7),
    Sketcher.Constraint("Diameter", 0, Q("0.13 in")),
    Sketcher.Constraint("DistanceY", 5, 1, 5, 2, Q("0.2 in")),
    Sketcher.Constraint("DistanceX", 2, 1, 2, 2, Q("0.89 in")),
    Sketcher.Constraint("DistanceX", 4, 1, 4, 2, Q("0.08 in")),
    Sketcher.Constraint("DistanceY", 1, 2, 1, 1, Q("0.472 in")),
    Sketcher.Constraint("DistanceY", -1, 1, 0, 3, Q("0.38 in")),
    Sketcher.Constraint("DistanceX", -1, 1, 0, 3, Q("3.231 in")),
    Sketcher.Constraint("DistanceX", -1, 1, 1, 2, Q("2.786 in")),
])
sketch9.setExpression("Constraints[20]", "Params.sketch9_diameter")
sketch9.setExpression("Constraints[21]", "Params.sketch9_height")
sketch9.setExpression("Constraints[22]", "Params.sketch9_width")
sketch9.setExpression("Constraints[23]", "Params.sketch9_width2")
sketch9.setExpression("Constraints[24]", "Params.sketch9_height2")
pocket8 = body.newObject("PartDesign::Pocket", "Pocket007")
pocket8.Profile = sketch9
pocket8.Type = "ThroughAll"

sketch10 = body.newObject("Sketcher::SketchObject", "Sketch009")
sketch10.AttachmentSupport = (doc.getObject("XY_Plane"), [""])
sketch10.MapMode = "FlatFace"
sketch10.AttachmentOffset = App.Placement(V(0, 0, 0.123 * 25.4), App.Rotation())
sketch10.addGeometry([
    Part.LineSegment(V(-61.6, 63.8, 0), V(-84.9, 63.8, 0)),
    Part.ArcOfCircle(Part.Circle(V(-84.9, 63, 0), V(0, 0, 1), 0.8), math.radians(90), math.radians(180)),
    Part.LineSegment(V(-85.7, 63, 0), V(-85.7, 52.1, 0)),
    Part.ArcOfCircle(Part.Circle(V(-86.5, 52.1, 0), V(0, 0, 1), 0.8), math.radians(-90), math.radians(0)),
    Part.LineSegment(V(-86.5, 51.3, 0), V(-95.7, 51.3, 0)),
    Part.ArcOfCircle(Part.Circle(V(-95.7, 50.5, 0), V(0, 0, 1), 0.8), math.radians(90), math.radians(180)),
    Part.LineSegment(V(-96.5, 50.5, 0), V(-96.5, 30.7, 0)),
    Part.ArcOfCircle(Part.Circle(V(-95.7, 30.7, 0), V(0, 0, 1), 0.8), math.radians(180), math.radians(270)),
    Part.LineSegment(V(-95.7, 30, 0), V(-61.6, 30, 0)),
    Part.ArcOfCircle(Part.Circle(V(-61.6, 30.7, 0), V(0, 0, 1), 0.8), math.radians(-90), math.radians(0)),
    Part.LineSegment(V(-60.8, 30.7, 0), V(-60.8, 63, 0)),
    Part.ArcOfCircle(Part.Circle(V(-61.6, 63, 0), V(0, 0, 1), 0.8), math.radians(0), math.radians(90)),
    Part.ArcOfCircle(Part.Circle(V(-95.2, 63.5, 0), V(0, 0, 1), 9.5), math.radians(90), math.radians(129)),
    Part.ArcOfCircle(Part.Circle(V(-100.3, 69.7, 0), V(0, 0, 1), 1.6), math.radians(0), math.radians(129)),
    Part.LineSegment(V(-98.7, 69.7, 0), V(-98.7, 67, 0)),
    Part.ArcOfCircle(Part.Circle(V(-97.1, 67, 0), V(0, 0, 1), 1.6), math.radians(180), math.radians(270)),
    Part.LineSegment(V(-97.1, 65.4, 0), V(-49.5, 65.4, 0)),
    Part.ArcOfCircle(Part.Circle(V(-49.5, 67, 0), V(0, 0, 1), 1.6), math.radians(-90), math.radians(0)),
    Part.LineSegment(V(-47.9, 67, 0), V(-47.9, 71.4, 0)),
    Part.ArcOfCircle(Part.Circle(V(-46.3, 71.4, 0), V(0, 0, 1), 1.6), math.radians(90), math.radians(180)),
    Part.LineSegment(V(-46.3, 73, 0), V(-95.2, 73, 0)),
    Part.ArcOfCircle(Part.Circle(V(-100.3, -69.7, 0), V(0, 0, 1), 1.6), math.radians(-129), math.radians(0)),
    Part.ArcOfCircle(Part.Circle(V(-95.2, -63.5, 0), V(0, 0, 1), 9.5), math.radians(-129), math.radians(-90)),
    Part.LineSegment(V(-95.2, -73, 0), V(-46.3, -73, 0)),
    Part.ArcOfCircle(Part.Circle(V(-46.3, -71.4, 0), V(0, 0, 1), 1.6), math.radians(180), math.radians(270)),
    Part.LineSegment(V(-47.9, -71.4, 0), V(-47.9, -67, 0)),
    Part.ArcOfCircle(Part.Circle(V(-49.5, -67, 0), V(0, 0, 1), 1.6), math.radians(0), math.radians(90)),
    Part.LineSegment(V(-49.5, -65.4, 0), V(-97.1, -65.4, 0)),
    Part.ArcOfCircle(Part.Circle(V(-97.1, -67, 0), V(0, 0, 1), 1.6), math.radians(90), math.radians(180)),
    Part.LineSegment(V(-98.7, -67, 0), V(-98.7, -69.7, 0)),
], False)
sketch10.addConstraint([
    Sketcher.Constraint("Tangent", 0, 2, 1, 1),
    Sketcher.Constraint("Tangent", 1, 2, 2, 1),
    Sketcher.Constraint("Tangent", 2, 2, 3, 2),
    Sketcher.Constraint("Tangent", 3, 1, 4, 1),
    Sketcher.Constraint("Tangent", 4, 2, 5, 1),
    Sketcher.Constraint("Tangent", 5, 2, 6, 1),
    Sketcher.Constraint("Tangent", 6, 2, 7, 1),
    Sketcher.Constraint("Tangent", 7, 2, 8, 1),
    Sketcher.Constraint("Tangent", 8, 2, 9, 1),
    Sketcher.Constraint("Tangent", 9, 2, 10, 1),
    Sketcher.Constraint("Tangent", 10, 2, 11, 1),
    Sketcher.Constraint("Tangent", 11, 2, 0, 1),
    Sketcher.Constraint("Tangent", 12, 2, 13, 2),
    Sketcher.Constraint("Tangent", 13, 1, 14, 1),
    Sketcher.Constraint("Tangent", 14, 2, 15, 1),
    Sketcher.Constraint("Tangent", 15, 2, 16, 1),
    Sketcher.Constraint("Tangent", 16, 2, 17, 1),
    Sketcher.Constraint("Tangent", 17, 2, 18, 1),
    Sketcher.Constraint("Tangent", 18, 2, 19, 2),
    Sketcher.Constraint("Tangent", 19, 1, 20, 1),
    Sketcher.Constraint("Tangent", 20, 2, 12, 1),
    Sketcher.Constraint("Tangent", 21, 1, 22, 1),
    Sketcher.Constraint("Tangent", 22, 2, 23, 1),
    Sketcher.Constraint("Tangent", 23, 2, 24, 2),
    Sketcher.Constraint("Tangent", 24, 1, 25, 1),
    Sketcher.Constraint("Tangent", 25, 2, 26, 1),
    Sketcher.Constraint("Tangent", 26, 2, 27, 1),
    Sketcher.Constraint("Tangent", 27, 2, 28, 1),
    Sketcher.Constraint("Tangent", 28, 2, 29, 1),
    Sketcher.Constraint("Tangent", 29, 2, 21, 2),
    Sketcher.Constraint("Horizontal", 0),
    Sketcher.Constraint("Vertical", 2),
    Sketcher.Constraint("Horizontal", 4),
    Sketcher.Constraint("Vertical", 6),
    Sketcher.Constraint("Horizontal", 8),
    Sketcher.Constraint("Vertical", 10),
    Sketcher.Constraint("Vertical", 14),
    Sketcher.Constraint("Horizontal", 16),
    Sketcher.Constraint("Vertical", 18),
    Sketcher.Constraint("Horizontal", 20),
    Sketcher.Constraint("Horizontal", 23),
    Sketcher.Constraint("Vertical", 25),
    Sketcher.Constraint("Horizontal", 27),
    Sketcher.Constraint("Vertical", 29),
    Sketcher.Constraint("Equal", 1, 3),
    Sketcher.Constraint("Equal", 3, 5),
    Sketcher.Constraint("Equal", 5, 7),
    Sketcher.Constraint("Equal", 7, 9),
    Sketcher.Constraint("Equal", 9, 11),
    Sketcher.Constraint("Equal", 13, 15),
    Sketcher.Constraint("Equal", 15, 17),
    Sketcher.Constraint("Equal", 17, 19),
    Sketcher.Constraint("Equal", 19, 21),
    Sketcher.Constraint("Equal", 12, 22),
    Sketcher.Constraint("Equal", 21, 24),
    Sketcher.Constraint("Equal", 24, 26),
    Sketcher.Constraint("Equal", 26, 28),
    Sketcher.Constraint("Symmetric", 13, 3, 21, 3, -1),
    Sketcher.Constraint("Symmetric", 19, 3, 24, 3, -1),
    Sketcher.Constraint("Equal", 18, 25),
    Sketcher.Constraint("Radius", 1, Q("0.03125 in")),
    Sketcher.Constraint("Radius", 12, Q("0.375 in")),
    Sketcher.Constraint("Radius", 13, Q("0.0625 in")),
    Sketcher.Constraint("DistanceX", 21, 3, 26, 3, Q("2 in")),
    Sketcher.Constraint("DistanceY", -1, 1, 12, 3, Q("2.5 in")),
    Sketcher.Constraint("DistanceX", 5, 2, -1, 1, Q("3.8 in")),
    Sketcher.Constraint("DistanceX", 12, 3, -1, 1, Q("3.75 in")),
    Sketcher.Constraint("DistanceY", 7, 3, 3, 3, Q("0.84 in")),
    Sketcher.Constraint("DistanceX", 3, 3, 9, 3, Q("0.98 in")),
    Sketcher.Constraint("DistanceY", 5, 3, 15, 3, Q("0.65 in")),
    Sketcher.Constraint("DistanceX", 13, 1, 1, 2, Q("0.51 in")),
    Sketcher.Constraint("DistanceX", 4, 2, 4, 1, Q("0.3625 in")),
    Sketcher.Constraint("DistanceY", 18, 1, 18, 2, Q("0.1745 in")),
    Sketcher.Constraint("DistanceY", -1, 1, 0, 2, Q("2.513 in")),
])
sketch10.setExpression("Constraints[60]", "Params.sketch10_radius")
sketch10.setExpression("Constraints[61]", "Params.sketch10_radius2")
sketch10.setExpression("Constraints[62]", "Params.sketch10_radius3")
pocket9 = body.newObject("PartDesign::Pocket", "Pocket008")
pocket9.Profile = sketch10
pocket9.Type = "ThroughAll"

doc.recompute()
